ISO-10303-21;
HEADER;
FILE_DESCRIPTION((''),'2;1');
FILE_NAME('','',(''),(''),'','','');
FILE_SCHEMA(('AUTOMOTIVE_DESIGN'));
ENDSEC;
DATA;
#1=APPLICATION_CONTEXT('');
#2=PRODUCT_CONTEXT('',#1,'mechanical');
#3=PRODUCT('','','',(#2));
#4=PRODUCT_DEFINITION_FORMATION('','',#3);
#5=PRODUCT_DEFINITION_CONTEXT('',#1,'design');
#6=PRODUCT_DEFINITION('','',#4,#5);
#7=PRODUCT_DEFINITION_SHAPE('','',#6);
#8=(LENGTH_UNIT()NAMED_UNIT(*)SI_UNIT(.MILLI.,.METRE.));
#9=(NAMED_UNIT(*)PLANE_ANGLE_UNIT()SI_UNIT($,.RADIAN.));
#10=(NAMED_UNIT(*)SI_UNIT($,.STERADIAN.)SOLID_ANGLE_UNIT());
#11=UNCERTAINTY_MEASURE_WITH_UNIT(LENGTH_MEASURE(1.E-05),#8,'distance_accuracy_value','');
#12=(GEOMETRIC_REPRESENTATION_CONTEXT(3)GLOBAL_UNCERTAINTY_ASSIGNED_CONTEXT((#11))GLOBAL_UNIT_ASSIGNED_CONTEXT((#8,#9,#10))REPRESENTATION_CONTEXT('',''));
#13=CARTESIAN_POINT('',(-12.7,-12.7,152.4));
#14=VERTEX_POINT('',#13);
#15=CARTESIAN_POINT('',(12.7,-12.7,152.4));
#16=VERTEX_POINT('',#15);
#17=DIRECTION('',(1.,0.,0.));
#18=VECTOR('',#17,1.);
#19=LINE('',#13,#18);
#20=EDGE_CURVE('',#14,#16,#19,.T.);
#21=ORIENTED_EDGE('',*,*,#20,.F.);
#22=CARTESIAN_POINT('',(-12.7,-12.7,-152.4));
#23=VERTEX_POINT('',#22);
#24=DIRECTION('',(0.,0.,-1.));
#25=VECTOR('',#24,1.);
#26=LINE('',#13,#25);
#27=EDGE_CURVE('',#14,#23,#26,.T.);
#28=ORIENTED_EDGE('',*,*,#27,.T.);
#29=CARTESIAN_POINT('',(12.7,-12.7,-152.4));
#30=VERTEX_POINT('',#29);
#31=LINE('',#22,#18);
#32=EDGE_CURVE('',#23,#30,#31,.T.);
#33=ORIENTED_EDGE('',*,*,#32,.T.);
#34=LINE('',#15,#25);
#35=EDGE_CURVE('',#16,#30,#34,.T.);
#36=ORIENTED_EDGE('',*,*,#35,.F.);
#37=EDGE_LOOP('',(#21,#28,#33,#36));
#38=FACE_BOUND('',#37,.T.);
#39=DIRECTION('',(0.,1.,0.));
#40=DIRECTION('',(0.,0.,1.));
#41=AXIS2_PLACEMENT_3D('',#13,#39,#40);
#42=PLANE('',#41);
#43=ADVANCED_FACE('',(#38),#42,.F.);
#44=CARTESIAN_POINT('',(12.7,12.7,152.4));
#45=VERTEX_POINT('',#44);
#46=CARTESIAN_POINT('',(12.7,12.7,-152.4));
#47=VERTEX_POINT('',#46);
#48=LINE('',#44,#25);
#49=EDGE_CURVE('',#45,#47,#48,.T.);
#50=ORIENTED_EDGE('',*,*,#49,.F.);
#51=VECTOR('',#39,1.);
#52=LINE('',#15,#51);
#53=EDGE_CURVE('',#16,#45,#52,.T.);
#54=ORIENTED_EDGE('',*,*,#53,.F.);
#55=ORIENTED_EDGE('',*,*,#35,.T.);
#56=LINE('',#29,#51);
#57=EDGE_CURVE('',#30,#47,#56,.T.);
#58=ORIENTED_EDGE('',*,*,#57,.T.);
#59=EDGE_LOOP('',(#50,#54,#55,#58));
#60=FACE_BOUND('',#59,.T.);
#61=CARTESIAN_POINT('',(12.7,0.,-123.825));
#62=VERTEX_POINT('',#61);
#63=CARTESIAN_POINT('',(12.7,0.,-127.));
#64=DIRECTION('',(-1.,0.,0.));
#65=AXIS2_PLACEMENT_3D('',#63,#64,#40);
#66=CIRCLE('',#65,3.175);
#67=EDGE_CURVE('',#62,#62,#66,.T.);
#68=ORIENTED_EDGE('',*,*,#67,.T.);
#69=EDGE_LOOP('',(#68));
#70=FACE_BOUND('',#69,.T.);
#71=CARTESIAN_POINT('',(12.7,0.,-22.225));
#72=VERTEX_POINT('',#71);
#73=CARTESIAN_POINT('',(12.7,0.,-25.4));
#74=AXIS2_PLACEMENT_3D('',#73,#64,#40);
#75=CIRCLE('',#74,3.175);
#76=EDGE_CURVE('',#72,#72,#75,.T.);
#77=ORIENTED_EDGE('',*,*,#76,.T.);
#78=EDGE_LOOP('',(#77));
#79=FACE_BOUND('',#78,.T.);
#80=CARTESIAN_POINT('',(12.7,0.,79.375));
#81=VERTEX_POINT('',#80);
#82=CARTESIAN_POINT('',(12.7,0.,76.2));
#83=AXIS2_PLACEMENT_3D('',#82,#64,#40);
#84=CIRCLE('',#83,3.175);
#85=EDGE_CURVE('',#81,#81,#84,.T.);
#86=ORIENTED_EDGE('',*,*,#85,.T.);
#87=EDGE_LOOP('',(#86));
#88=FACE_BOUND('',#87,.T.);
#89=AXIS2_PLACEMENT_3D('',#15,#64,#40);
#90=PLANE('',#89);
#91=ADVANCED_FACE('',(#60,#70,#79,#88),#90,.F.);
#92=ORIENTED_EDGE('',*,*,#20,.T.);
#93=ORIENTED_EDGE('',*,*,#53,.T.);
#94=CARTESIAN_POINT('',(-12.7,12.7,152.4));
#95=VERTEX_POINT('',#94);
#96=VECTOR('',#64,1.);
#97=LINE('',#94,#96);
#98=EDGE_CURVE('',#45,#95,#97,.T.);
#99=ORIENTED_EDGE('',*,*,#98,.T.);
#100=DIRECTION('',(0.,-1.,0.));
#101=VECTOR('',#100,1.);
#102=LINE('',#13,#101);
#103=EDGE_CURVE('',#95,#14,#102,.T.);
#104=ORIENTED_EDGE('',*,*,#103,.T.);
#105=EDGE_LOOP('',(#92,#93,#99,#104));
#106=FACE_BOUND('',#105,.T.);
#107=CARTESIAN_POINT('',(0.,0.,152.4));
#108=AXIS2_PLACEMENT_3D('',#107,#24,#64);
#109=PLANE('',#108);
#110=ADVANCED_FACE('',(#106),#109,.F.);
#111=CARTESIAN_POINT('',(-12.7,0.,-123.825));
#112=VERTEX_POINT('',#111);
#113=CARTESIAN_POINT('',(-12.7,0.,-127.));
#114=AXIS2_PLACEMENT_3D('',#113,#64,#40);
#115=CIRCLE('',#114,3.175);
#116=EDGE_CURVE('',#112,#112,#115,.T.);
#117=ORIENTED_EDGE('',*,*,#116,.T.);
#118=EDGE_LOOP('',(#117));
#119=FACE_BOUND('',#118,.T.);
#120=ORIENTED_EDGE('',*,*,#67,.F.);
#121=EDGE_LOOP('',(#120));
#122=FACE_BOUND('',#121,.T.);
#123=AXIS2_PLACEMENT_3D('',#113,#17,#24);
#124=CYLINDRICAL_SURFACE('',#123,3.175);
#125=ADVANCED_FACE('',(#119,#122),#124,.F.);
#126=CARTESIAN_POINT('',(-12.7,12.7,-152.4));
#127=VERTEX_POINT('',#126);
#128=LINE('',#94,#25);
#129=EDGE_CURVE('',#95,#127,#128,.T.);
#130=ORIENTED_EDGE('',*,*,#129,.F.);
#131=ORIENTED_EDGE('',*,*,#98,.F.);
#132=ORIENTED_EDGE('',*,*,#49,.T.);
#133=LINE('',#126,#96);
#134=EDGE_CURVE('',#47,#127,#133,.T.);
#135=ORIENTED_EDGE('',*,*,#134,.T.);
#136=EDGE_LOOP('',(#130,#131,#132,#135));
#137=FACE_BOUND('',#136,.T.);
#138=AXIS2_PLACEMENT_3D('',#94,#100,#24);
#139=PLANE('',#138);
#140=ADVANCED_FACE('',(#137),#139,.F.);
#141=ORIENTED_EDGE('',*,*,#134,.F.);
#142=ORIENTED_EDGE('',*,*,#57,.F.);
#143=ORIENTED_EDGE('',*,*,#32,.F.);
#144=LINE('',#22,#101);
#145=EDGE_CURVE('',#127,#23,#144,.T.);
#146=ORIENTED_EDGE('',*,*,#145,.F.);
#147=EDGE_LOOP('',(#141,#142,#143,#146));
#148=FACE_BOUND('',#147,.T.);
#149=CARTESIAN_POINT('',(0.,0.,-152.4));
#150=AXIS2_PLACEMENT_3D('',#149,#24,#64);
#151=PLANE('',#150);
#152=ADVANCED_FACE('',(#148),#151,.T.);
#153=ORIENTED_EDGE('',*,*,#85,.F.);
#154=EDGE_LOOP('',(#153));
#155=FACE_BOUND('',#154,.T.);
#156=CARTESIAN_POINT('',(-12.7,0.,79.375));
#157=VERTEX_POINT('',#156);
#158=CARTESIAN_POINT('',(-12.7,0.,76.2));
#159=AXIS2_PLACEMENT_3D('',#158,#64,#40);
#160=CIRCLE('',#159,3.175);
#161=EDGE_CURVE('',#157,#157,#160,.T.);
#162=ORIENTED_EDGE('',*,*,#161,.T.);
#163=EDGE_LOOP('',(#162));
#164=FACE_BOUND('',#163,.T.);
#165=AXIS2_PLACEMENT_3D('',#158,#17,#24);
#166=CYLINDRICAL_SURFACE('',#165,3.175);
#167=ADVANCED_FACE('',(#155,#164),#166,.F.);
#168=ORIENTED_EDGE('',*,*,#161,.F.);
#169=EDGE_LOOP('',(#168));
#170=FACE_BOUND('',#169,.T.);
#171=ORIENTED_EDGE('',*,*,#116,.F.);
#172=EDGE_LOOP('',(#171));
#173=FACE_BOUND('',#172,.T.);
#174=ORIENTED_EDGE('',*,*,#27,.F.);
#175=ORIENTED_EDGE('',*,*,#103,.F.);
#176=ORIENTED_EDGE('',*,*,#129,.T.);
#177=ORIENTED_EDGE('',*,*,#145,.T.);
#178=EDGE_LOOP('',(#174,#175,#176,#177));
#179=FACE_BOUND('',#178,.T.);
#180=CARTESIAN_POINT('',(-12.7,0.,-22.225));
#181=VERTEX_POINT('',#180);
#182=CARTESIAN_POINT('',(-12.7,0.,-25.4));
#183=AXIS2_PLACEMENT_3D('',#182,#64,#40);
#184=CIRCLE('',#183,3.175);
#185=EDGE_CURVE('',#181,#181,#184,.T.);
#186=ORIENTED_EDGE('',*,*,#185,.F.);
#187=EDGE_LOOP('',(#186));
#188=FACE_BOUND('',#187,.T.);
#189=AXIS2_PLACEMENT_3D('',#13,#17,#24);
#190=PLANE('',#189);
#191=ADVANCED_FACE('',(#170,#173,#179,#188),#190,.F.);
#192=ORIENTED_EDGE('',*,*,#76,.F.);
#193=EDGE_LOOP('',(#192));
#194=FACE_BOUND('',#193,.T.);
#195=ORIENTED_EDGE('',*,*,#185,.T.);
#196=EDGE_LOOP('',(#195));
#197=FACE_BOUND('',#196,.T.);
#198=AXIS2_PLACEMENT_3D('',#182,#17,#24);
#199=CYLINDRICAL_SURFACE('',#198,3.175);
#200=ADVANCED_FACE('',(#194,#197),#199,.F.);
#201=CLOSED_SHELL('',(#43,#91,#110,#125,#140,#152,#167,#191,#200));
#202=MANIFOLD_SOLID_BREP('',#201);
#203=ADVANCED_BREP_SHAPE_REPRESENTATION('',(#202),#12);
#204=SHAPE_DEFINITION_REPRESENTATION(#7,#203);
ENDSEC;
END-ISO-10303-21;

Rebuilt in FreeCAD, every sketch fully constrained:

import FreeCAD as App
import Part
import Sketcher

V = App.Vector
Q = App.Units.Quantity

doc = App.newDocument("Part")
params = doc.addObject("Spreadsheet::Sheet", "Params")
for row, (alias, value) in enumerate([
    ("sketch1_width", "1 in"),
    ("pad1_length", "12 in"),
    ("sketch2_diameter", "0.25 in"),
    ("linearpattern_pitch", "4 in"),
    ("linearpattern2_pitch", "4 in"),
], start=1):
    params.set(f"A{row}", alias)
    params.set(f"B{row}", "=" + value)
    params.setAlias(f"B{row}", alias)

body = doc.addObject("PartDesign::Body", "Body")

# Sketch on XY plane
sketch1 = body.newObject("Sketcher::SketchObject", "Sketch")
sketch1.AttachmentSupport = (doc.getObject("XY_Plane"), [""])
sketch1.MapMode = "FlatFace"
sketch1.addGeometry([
    Part.LineSegment(V(-13, 13, 0), V(-13, -13, 0)),
    Part.LineSegment(V(-13, -13, 0), V(13, -13, 0)),
    Part.LineSegment(V(13, -13, 0), V(13, 13, 0)),
    Part.LineSegment(V(13, 13, 0), V(-13, 13, 0)),
], False)
sketch1.addConstraint([
    Sketcher.Constraint("Coincident", 0, 2, 1, 1),
    Sketcher.Constraint("Coincident", 1, 2, 2, 1),
    Sketcher.Constraint("Coincident", 2, 2, 3, 1),
    Sketcher.Constraint("Coincident", 3, 2, 0, 1),
    Sketcher.Constraint("Vertical", 0),
    Sketcher.Constraint("Horizontal", 1),
    Sketcher.Constraint("Vertical", 2),
    Sketcher.Constraint("Horizontal", 3),
    Sketcher.Constraint("Symmetric", 0, 2, 2, 2, -1, 1),
    Sketcher.Constraint("Equal", 3, 0),
    Sketcher.Constraint("DistanceX", 1, 1, 1, 2, Q("1 in")),
])
sketch1.setExpression("Constraints[10]", "Params.sketch1_width")
pad1 = body.newObject("PartDesign::Pad", "Pad")
pad1.Profile = sketch1
pad1.setExpression("Length", "Params.pad1_length")
pad1.Midplane = True

# Sketch on YZ plane
sketch2 = body.newObject("Sketcher::SketchObject", "Sketch001")
sketch2.AttachmentSupport = (doc.getObject("YZ_Plane"), [""])
sketch2.MapMode = "FlatFace"
sketch2.AttachmentOffset = App.Placement(V(0, 0, 0.5 * 25.4), App.Rotation())
sketch2.addGeometry(Part.Circle(V(0, -25.4, 0), V(0, 0, 1), 3.2), False)
sketch2.addConstraint([
    Sketcher.Constraint("PointOnObject", 0, 3, -2),
    Sketcher.Constraint("Diameter", 0, Q("0.25 in")),
    Sketcher.Constraint("DistanceY", 0, 3, -1, 1, Q("1 in")),
])
sketch2.setExpression("Constraints[1]", "Params.sketch2_diameter")
pocket1 = body.newObject("PartDesign::Pocket", "Pocket")
pocket1.Profile = sketch2
pocket1.Type = "ThroughAll"
doc.recompute()

linearpattern = body.newObject("PartDesign::LinearPattern", "LinearPattern")
linearpattern.Originals = [pocket1]
linearpattern.Direction = (doc.getObject("Z_Axis"), [""])
linearpattern.Mode = "offset"
linearpattern.setExpression("Offset", "Params.linearpattern_pitch")
linearpattern.Occurrences = 2
linearpattern.Reversed = True
body.Tip = linearpattern
doc.recompute()

linearpattern2 = body.newObject("PartDesign::LinearPattern", "LinearPattern001")
linearpattern2.Originals = [pocket1]
linearpattern2.Direction = (doc.getObject("Z_Axis"), [""])
linearpattern2.Mode = "offset"
linearpattern2.setExpression("Offset", "Params.linearpattern2_pitch")
linearpattern2.Occurrences = 2
body.Tip = linearpattern2

doc.recompute()
